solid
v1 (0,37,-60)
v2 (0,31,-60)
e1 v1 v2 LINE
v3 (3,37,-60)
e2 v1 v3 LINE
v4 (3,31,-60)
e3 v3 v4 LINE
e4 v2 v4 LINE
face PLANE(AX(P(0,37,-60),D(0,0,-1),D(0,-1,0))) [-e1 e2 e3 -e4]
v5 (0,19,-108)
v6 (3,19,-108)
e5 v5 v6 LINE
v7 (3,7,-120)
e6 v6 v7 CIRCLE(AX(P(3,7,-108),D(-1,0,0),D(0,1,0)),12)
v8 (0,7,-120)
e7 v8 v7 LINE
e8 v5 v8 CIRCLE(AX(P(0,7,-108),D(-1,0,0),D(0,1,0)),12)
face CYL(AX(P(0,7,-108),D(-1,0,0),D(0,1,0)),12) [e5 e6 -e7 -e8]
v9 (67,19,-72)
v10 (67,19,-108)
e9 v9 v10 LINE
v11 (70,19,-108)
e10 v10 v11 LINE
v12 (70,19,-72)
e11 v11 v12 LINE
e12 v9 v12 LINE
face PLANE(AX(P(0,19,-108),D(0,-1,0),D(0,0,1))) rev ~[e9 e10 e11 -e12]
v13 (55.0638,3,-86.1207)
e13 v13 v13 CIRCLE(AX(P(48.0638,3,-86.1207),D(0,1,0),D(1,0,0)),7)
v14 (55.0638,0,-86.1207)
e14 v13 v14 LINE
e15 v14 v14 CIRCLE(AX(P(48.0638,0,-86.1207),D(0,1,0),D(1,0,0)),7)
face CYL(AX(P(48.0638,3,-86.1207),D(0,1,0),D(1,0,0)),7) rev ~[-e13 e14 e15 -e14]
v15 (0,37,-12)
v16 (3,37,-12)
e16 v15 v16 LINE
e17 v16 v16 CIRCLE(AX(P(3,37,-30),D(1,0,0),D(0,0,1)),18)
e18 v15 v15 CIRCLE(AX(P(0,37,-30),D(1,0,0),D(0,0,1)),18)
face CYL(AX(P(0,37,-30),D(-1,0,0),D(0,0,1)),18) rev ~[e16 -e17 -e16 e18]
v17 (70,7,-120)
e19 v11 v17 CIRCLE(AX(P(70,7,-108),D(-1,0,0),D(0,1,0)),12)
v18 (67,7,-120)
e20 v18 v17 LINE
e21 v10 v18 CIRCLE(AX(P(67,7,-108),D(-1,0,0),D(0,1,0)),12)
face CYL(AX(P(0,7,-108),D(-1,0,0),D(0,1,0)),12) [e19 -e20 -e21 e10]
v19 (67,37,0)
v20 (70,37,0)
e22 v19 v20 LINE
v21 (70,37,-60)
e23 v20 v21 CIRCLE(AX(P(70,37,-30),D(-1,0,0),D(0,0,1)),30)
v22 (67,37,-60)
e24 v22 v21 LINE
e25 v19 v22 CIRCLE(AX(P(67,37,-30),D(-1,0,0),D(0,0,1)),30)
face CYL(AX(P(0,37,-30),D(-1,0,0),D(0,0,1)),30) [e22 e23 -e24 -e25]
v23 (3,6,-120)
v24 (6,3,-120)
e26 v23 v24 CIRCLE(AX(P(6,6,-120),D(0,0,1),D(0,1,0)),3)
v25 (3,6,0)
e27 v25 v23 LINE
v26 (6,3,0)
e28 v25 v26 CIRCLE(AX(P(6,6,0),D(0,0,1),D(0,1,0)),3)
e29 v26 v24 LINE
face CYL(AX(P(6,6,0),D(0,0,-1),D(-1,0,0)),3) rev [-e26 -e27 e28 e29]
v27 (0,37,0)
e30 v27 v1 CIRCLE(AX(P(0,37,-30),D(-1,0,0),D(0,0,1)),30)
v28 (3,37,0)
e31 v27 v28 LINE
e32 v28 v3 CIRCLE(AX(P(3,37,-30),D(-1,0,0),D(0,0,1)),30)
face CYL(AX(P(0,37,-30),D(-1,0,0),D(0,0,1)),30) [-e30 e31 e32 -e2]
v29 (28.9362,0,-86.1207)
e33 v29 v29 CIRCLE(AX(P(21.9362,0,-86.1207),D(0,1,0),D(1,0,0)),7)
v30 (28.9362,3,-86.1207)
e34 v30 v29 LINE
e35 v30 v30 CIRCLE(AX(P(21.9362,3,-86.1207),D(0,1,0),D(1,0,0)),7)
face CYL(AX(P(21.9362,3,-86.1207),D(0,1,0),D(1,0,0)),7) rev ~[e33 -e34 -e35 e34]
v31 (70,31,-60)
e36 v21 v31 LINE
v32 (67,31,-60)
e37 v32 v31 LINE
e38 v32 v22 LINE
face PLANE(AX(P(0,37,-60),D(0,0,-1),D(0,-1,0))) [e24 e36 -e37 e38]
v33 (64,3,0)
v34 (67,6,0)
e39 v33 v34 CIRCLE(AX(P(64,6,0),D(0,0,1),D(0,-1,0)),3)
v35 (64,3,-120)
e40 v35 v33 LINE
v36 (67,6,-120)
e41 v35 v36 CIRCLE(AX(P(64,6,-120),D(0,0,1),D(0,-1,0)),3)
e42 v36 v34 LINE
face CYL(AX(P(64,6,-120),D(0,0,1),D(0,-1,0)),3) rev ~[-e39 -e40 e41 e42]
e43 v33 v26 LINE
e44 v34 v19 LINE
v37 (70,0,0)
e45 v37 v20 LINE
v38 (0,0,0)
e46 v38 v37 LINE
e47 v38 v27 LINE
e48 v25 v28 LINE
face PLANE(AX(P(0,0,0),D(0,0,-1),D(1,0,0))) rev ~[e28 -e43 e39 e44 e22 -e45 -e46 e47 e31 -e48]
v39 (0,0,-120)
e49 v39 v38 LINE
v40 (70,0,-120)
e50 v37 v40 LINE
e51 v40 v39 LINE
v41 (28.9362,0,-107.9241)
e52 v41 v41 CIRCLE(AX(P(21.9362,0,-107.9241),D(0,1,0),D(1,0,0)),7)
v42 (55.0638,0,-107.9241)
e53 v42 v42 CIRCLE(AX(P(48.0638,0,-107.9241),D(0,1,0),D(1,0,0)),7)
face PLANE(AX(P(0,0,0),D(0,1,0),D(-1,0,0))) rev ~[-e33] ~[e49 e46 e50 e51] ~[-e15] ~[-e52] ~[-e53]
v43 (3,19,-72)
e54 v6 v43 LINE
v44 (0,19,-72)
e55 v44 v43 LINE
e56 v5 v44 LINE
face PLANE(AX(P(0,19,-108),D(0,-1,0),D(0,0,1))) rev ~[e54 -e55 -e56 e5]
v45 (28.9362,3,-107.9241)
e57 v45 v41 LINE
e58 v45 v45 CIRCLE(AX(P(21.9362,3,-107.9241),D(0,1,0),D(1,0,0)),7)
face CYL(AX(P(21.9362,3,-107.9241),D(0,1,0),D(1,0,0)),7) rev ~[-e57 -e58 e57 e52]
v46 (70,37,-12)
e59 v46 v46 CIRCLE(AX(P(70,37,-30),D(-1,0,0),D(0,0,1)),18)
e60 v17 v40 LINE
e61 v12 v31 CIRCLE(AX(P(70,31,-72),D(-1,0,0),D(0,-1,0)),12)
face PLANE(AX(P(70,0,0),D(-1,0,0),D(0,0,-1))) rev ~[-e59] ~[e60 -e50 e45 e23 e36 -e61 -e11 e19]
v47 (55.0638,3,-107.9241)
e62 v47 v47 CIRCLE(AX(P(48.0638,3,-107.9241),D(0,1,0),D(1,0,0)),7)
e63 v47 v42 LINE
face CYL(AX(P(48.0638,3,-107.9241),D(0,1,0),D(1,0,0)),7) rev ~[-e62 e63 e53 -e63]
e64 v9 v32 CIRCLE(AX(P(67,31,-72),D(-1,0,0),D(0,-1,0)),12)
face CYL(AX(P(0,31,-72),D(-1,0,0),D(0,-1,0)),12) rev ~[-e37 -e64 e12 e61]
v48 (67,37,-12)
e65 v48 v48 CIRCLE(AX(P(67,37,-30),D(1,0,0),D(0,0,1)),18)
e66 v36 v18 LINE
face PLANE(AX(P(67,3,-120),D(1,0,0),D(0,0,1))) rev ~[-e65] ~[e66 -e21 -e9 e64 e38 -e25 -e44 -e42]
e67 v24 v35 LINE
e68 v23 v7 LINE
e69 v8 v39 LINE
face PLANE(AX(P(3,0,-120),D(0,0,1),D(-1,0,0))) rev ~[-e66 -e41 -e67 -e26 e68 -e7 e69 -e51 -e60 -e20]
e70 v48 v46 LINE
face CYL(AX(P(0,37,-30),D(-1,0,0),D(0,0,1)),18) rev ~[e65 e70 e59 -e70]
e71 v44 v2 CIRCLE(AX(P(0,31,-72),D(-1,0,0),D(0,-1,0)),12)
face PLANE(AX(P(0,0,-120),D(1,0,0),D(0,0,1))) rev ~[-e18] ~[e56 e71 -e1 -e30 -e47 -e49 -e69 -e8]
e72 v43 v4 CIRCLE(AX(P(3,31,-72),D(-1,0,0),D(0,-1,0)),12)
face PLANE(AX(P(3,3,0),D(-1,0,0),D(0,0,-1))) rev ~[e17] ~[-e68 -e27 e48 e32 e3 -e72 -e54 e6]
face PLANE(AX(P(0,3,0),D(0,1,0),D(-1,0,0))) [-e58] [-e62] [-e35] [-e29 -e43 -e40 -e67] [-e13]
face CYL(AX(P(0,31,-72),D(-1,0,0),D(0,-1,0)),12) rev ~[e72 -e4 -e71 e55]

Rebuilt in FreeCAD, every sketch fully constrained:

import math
import FreeCAD as App
import Part
import Sketcher


def edges_at(feature, points):
    """Names of the edges that pass closest to the given points."""
    edges = feature.Shape.Edges
    near = lambda p: min(range(len(edges)), key=lambda i: edges[i].distToShape(Part.Vertex(*p))[0])
    return sorted({f"Edge{near(p) + 1}" for p in points})


def add_polygon(sketch, points):
    """Adds a closed chain of lines whose ends are joined by coincident constraints."""
    first, n = sketch.GeometryCount, len(points)
    for a, b in zip(points, points[1:] + points[:1]):
        sketch.addGeometry(Part.LineSegment(App.Vector(*a, 0), App.Vector(*b, 0)), False)
    for i in range(n):
        sketch.addConstraint(Sketcher.Constraint("Coincident", first + i, 2, first + (i + 1) % n, 1))

doc = App.newDocument("Part")
body = doc.addObject("PartDesign::Body", "Body")

sketch1 = body.newObject("Sketcher::SketchObject", "Sketch")
sketch1.AttachmentSupport = (doc.getObject("XZ_Plane"), [""])
sketch1.MapMode = "FlatFace"
add_polygon(sketch1, [(0, -120), (0, 0), (70, 0), (70, -120)])
sketch1.addConstraint([
    Sketcher.Constraint("Vertical", 0),
    Sketcher.Constraint("Horizontal", 1),
    Sketcher.Constraint("Vertical", 2),
    Sketcher.Constraint("Horizontal", 3),
    Sketcher.Constraint("Coincident", 0, 2, -1, 1),
    Sketcher.Constraint("DistanceX", 1, 1, 1, 2, 70.0),
    Sketcher.Constraint("DistanceY", 0, 1, 0, 2, 120.0),
])
pad1 = body.newObject("PartDesign::Pad", "Pad")
pad1.Profile = sketch1
pad1.Length = 3
pad1.Reversed = True

sketch2 = body.newObject("Sketcher::SketchObject", "Sketch001")
sketch2.AttachmentSupport = (doc.getObject("XZ_Plane"), [""])
sketch2.MapMode = "FlatFace"
sketch2.AttachmentOffset = App.Placement(App.Vector(0, 0, -3), App.Rotation())
add_polygon(sketch2, [(67, 0), (70, 0), (70, -120), (67, -120)])
add_polygon(sketch2, [(0, 0), (3, 0), (3, -120), (0, -120)])
sketch2.addConstraint([
    Sketcher.Constraint("Horizontal", 0),
    Sketcher.Constraint("Vertical", 1),
    Sketcher.Constraint("Horizontal", 2),
    Sketcher.Constraint("Vertical", 3),
    Sketcher.Constraint("Horizontal", 4),
    Sketcher.Constraint("Vertical", 5),
    Sketcher.Constraint("Horizontal", 6),
    Sketcher.Constraint("Vertical", 7),
    Sketcher.Constraint("Coincident", 7, 2, -1, 1),
    Sketcher.Constraint("PointOnObject", 0, 2, -1),
    Sketcher.Constraint("Horizontal", 2, 2, 5, 2),
    Sketcher.Constraint("Equal", 2, 4),
    Sketcher.Constraint("DistanceX", 0, 1, 0, 2, 3.0),
    Sketcher.Constraint("DistanceY", 1, 2, 1, 1, 120.0),
    Sketcher.Constraint("DistanceX", -1, 1, 0, 2, 70.0),
])
pad2 = body.newObject("PartDesign::Pad", "Pad001")
pad2.Profile = sketch2
pad2.Length = 70
pad2.Reversed = True

sketch3 = body.newObject("Sketcher::SketchObject", "Sketch002")
sketch3.AttachmentSupport = (doc.getObject("YZ_Plane"), [""])
sketch3.MapMode = "FlatFace"
sketch3.addGeometry([
    Part.LineSegment(App.Vector(31, -60, 0), App.Vector(37, -60, 0)),
    Part.ArcOfCircle(Part.Circle(App.Vector(37, -30, 0), App.Vector(0, 0, 1), 30), math.radians(-90), math.radians(90)),
    Part.LineSegment(App.Vector(37, 0, 0), App.Vector(73, 0, 0)),
    Part.LineSegment(App.Vector(73, 0, 0), App.Vector(73, -120, 0)),
    Part.LineSegment(App.Vector(73, -120, 0), App.Vector(7, -120, 0)),
    Part.ArcOfCircle(Part.Circle(App.Vector(7, -108, 0), App.Vector(0, 0, 1), 12), math.radians(-90), math.radians(0)),
    Part.LineSegment(App.Vector(19, -108, 0), App.Vector(19, -72, 0)),
    Part.ArcOfCircle(Part.Circle(App.Vector(31, -72, 0), App.Vector(0, 0, 1), 12), math.radians(90), math.radians(180)),
], False)
sketch3.addConstraint([
    Sketcher.Constraint("Tangent", 0, 2, 1, 1),
    Sketcher.Constraint("Tangent", 1, 2, 2, 1),
    Sketcher.Constraint("Coincident", 2, 2, 3, 1),
    Sketcher.Constraint("Coincident", 3, 2, 4, 1),
    Sketcher.Constraint("Tangent", 4, 2, 5, 1),
    Sketcher.Constraint("Tangent", 5, 2, 6, 1),
    Sketcher.Constraint("Tangent", 6, 2, 7, 2),
    Sketcher.Constraint("Tangent", 7, 1, 0, 1),
    Sketcher.Constraint("Horizontal", 0),
    Sketcher.Constraint("Horizontal", 2),
    Sketcher.Constraint("Vertical", 3),
    Sketcher.Constraint("Horizontal", 4),
    Sketcher.Constraint("Vertical", 6),
    Sketcher.Constraint("Equal", 5, 7),
    Sketcher.Constraint("PointOnObject", 1, 2, -1),
    Sketcher.Constraint("Equal", 2, 6),
    Sketcher.Constraint("Radius", 1, 30.0),
    Sketcher.Constraint("Radius", 5, 12.0),
    Sketcher.Constraint("DistanceX", 2, 1, 2, 2, 36.0),
    Sketcher.Constraint("DistanceX", -1, 1, 1, 3, 37.0),
    Sketcher.Constraint("DistanceX", -1, 1, 5, 2, 19.0),
])
pocket1 = body.newObject("PartDesign::Pocket", "Pocket")
pocket1.Profile = sketch3
pocket1.Length = 70
pocket1.Reversed = True

sketch4 = body.newObject("Sketcher::SketchObject", "Sketch003")
sketch4.AttachmentSupport = (doc.getObject("YZ_Plane"), [""])
sketch4.MapMode = "FlatFace"
sketch4.addGeometry(Part.Circle(App.Vector(37, -30, 0), App.Vector(0, 0, 1), 18), False)
sketch4.addConstraint([
    Sketcher.Constraint("Diameter", 0, 36.0),
    Sketcher.Constraint("DistanceX", -1, 1, 0, 3, 37.0),
    Sketcher.Constraint("DistanceY", 0, 3, -1, 1, 30.0),
])
pocket2 = body.newObject("PartDesign::Pocket", "Pocket001")
pocket2.Profile = sketch4
pocket2.Length = 70
pocket2.Reversed = True
doc.recompute()

fillet = body.newObject("PartDesign::Fillet", "Fillet")
fillet.Base = (pocket2, edges_at(pocket2, [(3, 3, -60), (67, 3, -60)]))
fillet.Radius = 3

sketch5 = body.newObject("Sketcher::SketchObject", "Sketch004")
sketch5.AttachmentSupport = (doc.getObject("XZ_Plane"), [""])
sketch5.MapMode = "FlatFace"
sketch5.AttachmentOffset = App.Placement(App.Vector(0, 0, -3), App.Rotation())
sketch5.addGeometry([
    Part.Circle(App.Vector(48.0638, -86.1207, 0), App.Vector(0, 0, 1), 7),
    Part.Circle(App.Vector(48.0638, -107.9241, 0), App.Vector(0, 0, 1), 7),
    Part.Circle(App.Vector(21.9362, -86.1207, 0), App.Vector(0, 0, 1), 7),
    Part.Circle(App.Vector(21.9362, -107.9241, 0), App.Vector(0, 0, 1), 7),
], False)
sketch5.addConstraint([
    Sketcher.Constraint("Equal", 0, 1),
    Sketcher.Constraint("Equal", 1, 2),
    Sketcher.Constraint("Equal", 2, 3),
    Sketcher.Constraint("Horizontal", 0, 3, 2, 3),
    Sketcher.Constraint("Horizontal", 1, 3, 3, 3),
    Sketcher.Constraint("Vertical", 0, 3, 1, 3),
    Sketcher.Constraint("Vertical", 2, 3, 3, 3),
    Sketcher.Constraint("Diameter", 0, 14.0),
    Sketcher.Constraint("DistanceY", 1, 3, -1, 1, 107.924),
    Sketcher.Constraint("DistanceX", -1, 1, 0, 3, 48.0638),
    Sketcher.Constraint("DistanceY", 0, 3, -1, 1, 86.1207),
    Sketcher.Constraint("DistanceX", -1, 1, 2, 3, 21.9362),
])
pocket3 = body.newObject("PartDesign::Pocket", "Pocket002")
pocket3.Profile = sketch5
pocket3.Length = 70
pocket3.Reversed = True

doc.recompute()
